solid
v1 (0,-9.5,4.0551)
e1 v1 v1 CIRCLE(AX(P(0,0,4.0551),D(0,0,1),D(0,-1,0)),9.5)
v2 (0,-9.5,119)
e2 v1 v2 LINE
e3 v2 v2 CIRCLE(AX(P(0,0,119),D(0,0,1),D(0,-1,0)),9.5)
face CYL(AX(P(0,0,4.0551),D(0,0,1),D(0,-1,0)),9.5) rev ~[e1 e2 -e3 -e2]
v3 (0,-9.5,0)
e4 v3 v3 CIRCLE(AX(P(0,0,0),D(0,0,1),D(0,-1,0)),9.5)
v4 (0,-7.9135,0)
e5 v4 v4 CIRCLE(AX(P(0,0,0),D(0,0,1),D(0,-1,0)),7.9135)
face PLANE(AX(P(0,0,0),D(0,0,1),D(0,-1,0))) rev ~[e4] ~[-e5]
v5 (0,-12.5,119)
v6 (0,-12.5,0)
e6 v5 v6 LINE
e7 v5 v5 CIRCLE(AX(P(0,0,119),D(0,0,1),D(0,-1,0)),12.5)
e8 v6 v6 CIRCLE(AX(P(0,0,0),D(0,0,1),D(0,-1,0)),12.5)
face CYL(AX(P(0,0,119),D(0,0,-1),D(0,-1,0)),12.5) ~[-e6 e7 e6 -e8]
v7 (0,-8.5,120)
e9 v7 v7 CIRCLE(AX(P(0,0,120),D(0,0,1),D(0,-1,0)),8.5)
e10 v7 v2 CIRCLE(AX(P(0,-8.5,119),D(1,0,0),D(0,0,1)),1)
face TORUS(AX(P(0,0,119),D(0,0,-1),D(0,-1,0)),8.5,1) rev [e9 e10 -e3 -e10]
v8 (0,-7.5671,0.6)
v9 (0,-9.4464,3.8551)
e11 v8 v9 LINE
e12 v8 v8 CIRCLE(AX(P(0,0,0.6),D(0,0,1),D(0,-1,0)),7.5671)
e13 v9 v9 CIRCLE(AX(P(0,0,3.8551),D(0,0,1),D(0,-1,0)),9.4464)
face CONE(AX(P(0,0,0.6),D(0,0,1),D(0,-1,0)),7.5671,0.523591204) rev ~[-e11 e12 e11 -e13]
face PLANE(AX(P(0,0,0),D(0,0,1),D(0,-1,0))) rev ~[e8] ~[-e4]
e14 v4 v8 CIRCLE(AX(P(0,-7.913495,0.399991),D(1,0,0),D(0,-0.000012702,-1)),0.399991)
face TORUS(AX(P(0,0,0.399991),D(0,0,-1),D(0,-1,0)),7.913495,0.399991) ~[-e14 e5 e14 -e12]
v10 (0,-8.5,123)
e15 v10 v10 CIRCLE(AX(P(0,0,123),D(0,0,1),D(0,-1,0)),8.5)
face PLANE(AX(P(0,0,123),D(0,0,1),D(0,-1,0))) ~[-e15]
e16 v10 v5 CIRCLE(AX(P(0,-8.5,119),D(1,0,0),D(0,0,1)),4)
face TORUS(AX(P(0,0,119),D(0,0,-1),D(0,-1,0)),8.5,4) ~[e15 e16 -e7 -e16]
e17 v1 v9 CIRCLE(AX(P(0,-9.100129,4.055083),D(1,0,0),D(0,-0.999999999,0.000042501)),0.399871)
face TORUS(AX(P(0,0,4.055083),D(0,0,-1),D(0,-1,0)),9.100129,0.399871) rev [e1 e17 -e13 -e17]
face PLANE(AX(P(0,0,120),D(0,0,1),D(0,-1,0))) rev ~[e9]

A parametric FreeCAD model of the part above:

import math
import FreeCAD as App
import Part
import Sketcher
from FreeCAD import Vector
Q = App.Units.Quantity

doc = App.newDocument("Part")
params = doc.addObject("Spreadsheet::Sheet", "Params")
for row, (alias, value) in enumerate([
    ("sketch1_radius", "1 mm"),
    ("sketch1_radius2", "4 mm"),
    ("sketch1_radius3", "0.4 mm"),
    ("sketch1_width", "8.5 mm"),
    ("revolution_angle", "360 deg"),
], start=1):
    params.set(f"A{row}", alias)
    params.set(f"B{row}", "=" + value)
    params.setAlias(f"B{row}", alias)

body = doc.addObject("PartDesign::Body", "Body")

# Sketch on YZ plane
sketch1 = doc.addObject("Sketcher::SketchObject", "Sketch")
body.addObject(sketch1)
sketch1.AttachmentSupport = (doc.YZ_Plane, [""])
sketch1.MapMode = "FlatFace"
sketch1.addGeometry([
    Part.LineSegment(Vector(-12.5, 119, 0), Vector(-12.5, 0, 0)),  # 0
    Part.LineSegment(Vector(-12.5, 0, 0), Vector(-7.91, 0, 0)),  # 1
    Part.ArcOfCircle(Part.Circle(Vector(-7.91, 0.4, 0), Vector(0, 0, 1), 0.4), math.radians(-90), math.radians(30)),  # 2
    Part.LineSegment(Vector(-7.57, 0.6, 0), Vector(-9.45, 3.86, 0)),  # 3
    Part.ArcOfCircle(Part.Circle(Vector(-9.1, 4.06, 0), Vector(0, 0, 1), 0.4), math.radians(180), math.radians(210)),  # 4
    Part.LineSegment(Vector(-9.5, 4.06, 0), Vector(-9.5, 119, 0)),  # 5
    Part.ArcOfCircle(Part.Circle(Vector(-8.5, 119, 0), Vector(0, 0, 1), 1), math.radians(90), math.radians(180)),  # 6
    Part.LineSegment(Vector(-8.5, 120, 0), Vector(0, 120, 0)),  # 7
    Part.LineSegment(Vector(0, 120, 0), Vector(0, 123, 0)),  # 8
    Part.LineSegment(Vector(0, 123, 0), Vector(-8.5, 123, 0)),  # 9
    Part.ArcOfCircle(Part.Circle(Vector(-8.5, 119, 0), Vector(0, 0, 1), 4), math.radians(90), math.radians(180)),  # 10
], False)
sketch1.addConstraint([
    Sketcher.Constraint("Coincident", 0, 2, 1, 1),
    Sketcher.Constraint("Tangent", 1, 2, 2, 1),
    Sketcher.Constraint("Tangent", 2, 2, 3, 1),
    Sketcher.Constraint("Tangent", 3, 2, 4, 2),
    Sketcher.Constraint("Tangent", 4, 1, 5, 1),
    Sketcher.Constraint("Tangent", 5, 2, 6, 2),
    Sketcher.Constraint("Tangent", 6, 1, 7, 1),
    Sketcher.Constraint("Coincident", 7, 2, 8, 1),
    Sketcher.Constraint("Coincident", 8, 2, 9, 1),
    Sketcher.Constraint("Tangent", 9, 2, 10, 1),
    Sketcher.Constraint("Tangent", 10, 2, 0, 1),
    Sketcher.Constraint("Vertical", 0),
    Sketcher.Constraint("Horizontal", 1),
    Sketcher.Constraint("Vertical", 5),
    Sketcher.Constraint("Horizontal", 7),
    Sketcher.Constraint("Vertical", 8),
    Sketcher.Constraint("Horizontal", 9),
    Sketcher.Constraint("Coincident", 10, 3, 6, 3),
    Sketcher.Constraint("Equal", 2, 4),
    Sketcher.Constraint("PointOnObject", 0, 2, -1),
    Sketcher.Constraint("PointOnObject", 7, 2, -2),
    Sketcher.Constraint("Radius", 6, 1.0),
    Sketcher.Constraint("Radius", 10, 4.0),
    Sketcher.Constraint("Radius", 2, 0.4),
    Sketcher.Constraint("Angle", 3, Q("119.9996 deg")),
    Sketcher.Constraint("DistanceY", -1, 1, 6, 1, 120.0),
    Sketcher.Constraint("DistanceX", 7, 1, 7, 2, 8.5),
    Sketcher.Constraint("DistanceY", 5, 1, 5, 2, 114.945),
])
sketch1.setExpression("Constraints[21]", "Params.sketch1_radius")
sketch1.setExpression("Constraints[22]", "Params.sketch1_radius2")
sketch1.setExpression("Constraints[23]", "Params.sketch1_radius3")
sketch1.setExpression("Constraints[26]", "Params.sketch1_width")
revolution = doc.addObject("PartDesign::Revolution", "Revolution")
body.addObject(revolution)
revolution.Profile = sketch1
revolution.ReferenceAxis = (sketch1, ["V_Axis"])
revolution.setExpression("Angle", "Params.revolution_angle")

doc.recompute()
